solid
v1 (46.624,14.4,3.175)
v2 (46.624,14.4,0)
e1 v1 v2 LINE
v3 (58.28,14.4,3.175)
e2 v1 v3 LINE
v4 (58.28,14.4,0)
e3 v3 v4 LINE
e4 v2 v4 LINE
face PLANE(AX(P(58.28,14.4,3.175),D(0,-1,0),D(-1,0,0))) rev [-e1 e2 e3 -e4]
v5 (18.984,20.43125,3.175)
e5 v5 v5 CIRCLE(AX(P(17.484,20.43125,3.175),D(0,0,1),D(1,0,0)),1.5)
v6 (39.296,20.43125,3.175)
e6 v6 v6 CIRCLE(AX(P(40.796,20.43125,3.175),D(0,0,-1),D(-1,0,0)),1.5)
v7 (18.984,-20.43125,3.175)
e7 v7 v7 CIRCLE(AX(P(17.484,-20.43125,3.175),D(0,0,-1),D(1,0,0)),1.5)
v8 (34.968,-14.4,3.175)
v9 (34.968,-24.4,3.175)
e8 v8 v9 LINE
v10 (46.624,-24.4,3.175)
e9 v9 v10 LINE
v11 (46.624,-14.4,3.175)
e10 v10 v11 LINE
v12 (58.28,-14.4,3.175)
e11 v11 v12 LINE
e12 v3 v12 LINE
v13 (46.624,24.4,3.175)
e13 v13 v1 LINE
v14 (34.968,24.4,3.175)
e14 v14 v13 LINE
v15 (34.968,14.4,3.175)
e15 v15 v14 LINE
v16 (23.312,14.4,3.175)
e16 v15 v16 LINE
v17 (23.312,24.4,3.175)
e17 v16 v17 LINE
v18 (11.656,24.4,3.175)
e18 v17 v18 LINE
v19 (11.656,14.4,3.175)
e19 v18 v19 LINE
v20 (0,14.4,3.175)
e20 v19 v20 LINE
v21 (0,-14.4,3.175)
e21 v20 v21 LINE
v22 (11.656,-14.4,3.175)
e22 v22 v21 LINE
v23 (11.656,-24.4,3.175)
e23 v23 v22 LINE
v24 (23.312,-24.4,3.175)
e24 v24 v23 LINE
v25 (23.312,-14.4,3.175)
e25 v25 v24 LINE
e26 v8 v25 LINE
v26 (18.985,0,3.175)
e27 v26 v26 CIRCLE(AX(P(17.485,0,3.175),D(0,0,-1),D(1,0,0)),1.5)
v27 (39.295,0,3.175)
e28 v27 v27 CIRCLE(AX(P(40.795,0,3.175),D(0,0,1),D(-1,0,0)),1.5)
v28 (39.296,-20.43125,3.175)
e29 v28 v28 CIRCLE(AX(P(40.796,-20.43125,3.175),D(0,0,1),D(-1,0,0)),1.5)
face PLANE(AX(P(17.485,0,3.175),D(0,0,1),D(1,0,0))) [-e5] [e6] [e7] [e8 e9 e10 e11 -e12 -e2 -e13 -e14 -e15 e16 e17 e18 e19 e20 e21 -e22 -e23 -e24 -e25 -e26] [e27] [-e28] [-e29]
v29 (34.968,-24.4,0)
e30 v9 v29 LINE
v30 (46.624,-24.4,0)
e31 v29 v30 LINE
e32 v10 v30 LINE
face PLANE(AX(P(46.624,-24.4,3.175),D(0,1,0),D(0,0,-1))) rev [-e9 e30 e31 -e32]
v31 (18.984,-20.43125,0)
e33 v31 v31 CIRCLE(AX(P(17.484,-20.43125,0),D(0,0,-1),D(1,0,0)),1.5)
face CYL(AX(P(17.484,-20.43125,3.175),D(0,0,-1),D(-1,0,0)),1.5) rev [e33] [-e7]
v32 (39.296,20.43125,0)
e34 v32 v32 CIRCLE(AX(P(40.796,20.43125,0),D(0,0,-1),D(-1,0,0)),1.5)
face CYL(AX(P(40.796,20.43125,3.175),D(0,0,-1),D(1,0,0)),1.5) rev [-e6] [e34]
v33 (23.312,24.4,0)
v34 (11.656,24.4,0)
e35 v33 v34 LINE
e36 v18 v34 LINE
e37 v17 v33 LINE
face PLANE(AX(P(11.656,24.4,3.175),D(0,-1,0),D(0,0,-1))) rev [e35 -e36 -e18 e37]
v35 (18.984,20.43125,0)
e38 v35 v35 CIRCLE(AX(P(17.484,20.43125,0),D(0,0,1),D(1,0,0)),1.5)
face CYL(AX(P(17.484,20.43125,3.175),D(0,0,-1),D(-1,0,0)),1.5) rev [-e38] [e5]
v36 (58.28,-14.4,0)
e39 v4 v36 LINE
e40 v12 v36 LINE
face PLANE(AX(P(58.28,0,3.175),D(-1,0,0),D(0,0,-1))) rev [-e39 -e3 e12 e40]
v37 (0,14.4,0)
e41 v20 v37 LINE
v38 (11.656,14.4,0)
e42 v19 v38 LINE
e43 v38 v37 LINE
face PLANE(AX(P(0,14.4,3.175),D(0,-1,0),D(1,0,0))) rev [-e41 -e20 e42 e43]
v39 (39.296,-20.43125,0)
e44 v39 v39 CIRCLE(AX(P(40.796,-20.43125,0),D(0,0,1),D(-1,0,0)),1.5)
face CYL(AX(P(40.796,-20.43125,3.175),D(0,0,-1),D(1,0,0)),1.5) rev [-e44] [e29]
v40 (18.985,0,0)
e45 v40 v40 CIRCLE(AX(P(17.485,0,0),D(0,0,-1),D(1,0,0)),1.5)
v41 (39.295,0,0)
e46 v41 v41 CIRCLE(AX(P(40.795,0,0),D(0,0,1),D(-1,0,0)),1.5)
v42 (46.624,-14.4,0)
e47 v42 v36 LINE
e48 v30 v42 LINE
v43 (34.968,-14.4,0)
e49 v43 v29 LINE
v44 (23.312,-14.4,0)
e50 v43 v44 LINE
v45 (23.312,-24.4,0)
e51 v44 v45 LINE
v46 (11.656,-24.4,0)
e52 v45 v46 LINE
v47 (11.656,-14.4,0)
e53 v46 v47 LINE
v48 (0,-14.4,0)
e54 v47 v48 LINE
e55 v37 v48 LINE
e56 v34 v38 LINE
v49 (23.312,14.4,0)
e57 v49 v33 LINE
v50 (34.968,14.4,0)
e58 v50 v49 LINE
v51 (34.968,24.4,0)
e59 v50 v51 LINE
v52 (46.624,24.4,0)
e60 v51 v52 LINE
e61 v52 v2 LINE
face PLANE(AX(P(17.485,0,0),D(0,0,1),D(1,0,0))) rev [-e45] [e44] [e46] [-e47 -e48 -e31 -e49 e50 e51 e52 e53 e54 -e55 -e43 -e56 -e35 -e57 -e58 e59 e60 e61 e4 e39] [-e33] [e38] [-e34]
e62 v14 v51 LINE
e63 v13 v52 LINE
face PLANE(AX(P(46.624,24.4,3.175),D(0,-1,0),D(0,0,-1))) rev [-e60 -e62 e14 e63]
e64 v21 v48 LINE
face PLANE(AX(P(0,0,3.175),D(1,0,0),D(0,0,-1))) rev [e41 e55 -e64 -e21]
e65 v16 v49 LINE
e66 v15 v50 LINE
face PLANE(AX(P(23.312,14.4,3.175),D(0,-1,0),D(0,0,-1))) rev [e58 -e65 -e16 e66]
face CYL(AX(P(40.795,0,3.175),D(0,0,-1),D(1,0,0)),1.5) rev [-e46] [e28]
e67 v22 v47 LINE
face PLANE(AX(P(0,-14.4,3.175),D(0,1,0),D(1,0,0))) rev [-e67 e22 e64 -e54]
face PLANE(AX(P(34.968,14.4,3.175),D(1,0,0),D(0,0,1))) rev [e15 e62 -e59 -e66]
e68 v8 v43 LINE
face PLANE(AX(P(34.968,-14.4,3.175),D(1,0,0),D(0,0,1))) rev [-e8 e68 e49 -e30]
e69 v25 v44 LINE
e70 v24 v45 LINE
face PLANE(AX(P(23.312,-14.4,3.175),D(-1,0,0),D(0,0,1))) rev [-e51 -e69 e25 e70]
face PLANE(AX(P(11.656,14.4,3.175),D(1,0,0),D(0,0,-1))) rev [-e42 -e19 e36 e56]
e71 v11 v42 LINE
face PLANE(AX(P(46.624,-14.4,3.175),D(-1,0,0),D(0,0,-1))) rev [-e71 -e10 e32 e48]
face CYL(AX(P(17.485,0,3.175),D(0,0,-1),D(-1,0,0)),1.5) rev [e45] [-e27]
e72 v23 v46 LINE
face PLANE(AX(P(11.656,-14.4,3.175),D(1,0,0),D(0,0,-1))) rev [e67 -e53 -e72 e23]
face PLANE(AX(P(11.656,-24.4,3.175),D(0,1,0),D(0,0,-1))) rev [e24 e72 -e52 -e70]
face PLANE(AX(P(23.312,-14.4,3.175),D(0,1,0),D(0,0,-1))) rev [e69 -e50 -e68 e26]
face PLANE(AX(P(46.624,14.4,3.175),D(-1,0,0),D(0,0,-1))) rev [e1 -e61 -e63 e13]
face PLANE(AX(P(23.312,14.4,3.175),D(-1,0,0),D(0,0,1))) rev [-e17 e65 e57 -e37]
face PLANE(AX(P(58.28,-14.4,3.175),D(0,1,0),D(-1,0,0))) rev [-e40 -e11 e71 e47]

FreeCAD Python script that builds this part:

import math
import FreeCAD as App
import Part
import Sketcher

doc = App.newDocument("Part")
params = doc.addObject("Spreadsheet::Sheet", "Params")
for row, (alias, value) in enumerate([
    ("sketch1_diameter", "3 mm"),
    ("sketch1_height", "10 mm"),
    ("sketch1_height2", "14.4 mm"),
    ("pad1_length", "3.175 mm"),
], start=1):
    params.set(f"A{row}", alias)
    params.set(f"B{row}", "=" + value)
    params.setAlias(f"B{row}", alias)

body = doc.addObject("PartDesign::Body", "Body")

sketch1 = body.newObject("Sketcher::SketchObject", "Sketch")
sketch1.AttachmentSupport = (doc.getObject("XY_Plane"), [""])
sketch1.MapMode = "FlatFace"
sketch1.addGeometry([
    Part.LineSegment(App.Vector(29.1, 14.4, 0), App.Vector(23.3, 14.4, 0)),
    Part.LineSegment(App.Vector(23.3, 14.4, 0), App.Vector(23.3, 24.4, 0)),
    Part.LineSegment(App.Vector(23.3, 24.4, 0), App.Vector(11.7, 24.4, 0)),
    Part.LineSegment(App.Vector(11.7, 24.4, 0), App.Vector(11.7, 14.4, 0)),
    Part.LineSegment(App.Vector(11.7, 14.4, 0), App.Vector(0, 14.4, 0)),
    Part.LineSegment(App.Vector(0, 14.4, 0), App.Vector(0, 0, 0)),
    Part.LineSegment(App.Vector(0, 0, 0), App.Vector(16, 0, 0)),
    Part.ArcOfCircle(Part.Circle(App.Vector(17.5, 0, 0), App.Vector(0, 0, 1), 1.5), math.radians(0), math.radians(180)),
    Part.LineSegment(App.Vector(19, 0, 0), App.Vector(29.1, 0, 0)),
    Part.LineSegment(App.Vector(29.1, 0, 0), App.Vector(29.1, 14.4, 0)),
    Part.Circle(App.Vector(17.5, 20.4, 0), App.Vector(0, 0, 1), 1.5),
], False)
sketch1.addConstraint([
    Sketcher.Constraint("Coincident", 0, 2, 1, 1),
    Sketcher.Constraint("Coincident", 1, 2, 2, 1),
    Sketcher.Constraint("Coincident", 2, 2, 3, 1),
    Sketcher.Constraint("Coincident", 3, 2, 4, 1),
    Sketcher.Constraint("Coincident", 4, 2, 5, 1),
    Sketcher.Constraint("Coincident", 5, 2, 6, 1),
    Sketcher.Constraint("Coincident", 6, 2, 7, 2),
    Sketcher.Constraint("Coincident", 7, 1, 8, 1),
    Sketcher.Constraint("Coincident", 8, 2, 9, 1),
    Sketcher.Constraint("Coincident", 9, 2, 0, 1),
    Sketcher.Constraint("Horizontal", 0),
    Sketcher.Constraint("Vertical", 1),
    Sketcher.Constraint("Horizontal", 2),
    Sketcher.Constraint("Vertical", 3),
    Sketcher.Constraint("Horizontal", 4),
    Sketcher.Constraint("Vertical", 5),
    Sketcher.Constraint("Horizontal", 6),
    Sketcher.Constraint("Horizontal", 8),
    Sketcher.Constraint("Vertical", 9),
    Sketcher.Constraint("Coincident", 5, 2, -1, 1),
    Sketcher.Constraint("Equal", 7, 10),
    Sketcher.Constraint("PointOnObject", 7, 3, -1),
    Sketcher.Constraint("PointOnObject", 7, 1, -1),
    Sketcher.Constraint("Horizontal", 0, 2, 3, 2),
    Sketcher.Constraint("Equal", 2, 4),
    Sketcher.Constraint("Diameter", 10, 3.0),
    Sketcher.Constraint("DistanceY", 1, 1, 1, 2, 10.0),
    Sketcher.Constraint("DistanceY", 5, 2, 5, 1, 14.4),
    Sketcher.Constraint("DistanceX", 0, 2, 0, 1, 5.828),
    Sketcher.Constraint("DistanceX", 2, 2, 2, 1, 11.656),
    Sketcher.Constraint("DistanceX", 6, 1, 6, 2, 15.985),
    Sketcher.Constraint("DistanceX", -1, 1, 10, 3, 17.484),
    Sketcher.Constraint("DistanceY", -1, 1, 10, 3, 20.43125),
])
sketch1.setExpression("Constraints[25]", "Params.sketch1_diameter")
sketch1.setExpression("Constraints[26]", "Params.sketch1_height")
sketch1.setExpression("Constraints[27]", "Params.sketch1_height2")
pad1 = body.newObject("PartDesign::Pad", "Pad")
pad1.Profile = sketch1
pad1.setExpression("Length", "Params.pad1_length")
body2 = doc.addObject("PartDesign::Body", "Body001")
doc.recompute()

body2.BaseFeature = body
doc.recompute()

mirroring = doc.addObject("Part::Mirroring", "Mirroring")
mirroring.Source = body
mirroring.Base = App.Vector(0, 0, 3.175)
mirroring.Normal = App.Vector(0, 1, 0)
body3 = doc.addObject("PartDesign::Body", "Body002")
body3.BaseFeature = mirroring
boolean = body2.newObject("PartDesign::Boolean", "Boolean")
boolean.Type = "Fuse"
boolean.addObjects([body3])
doc.recompute()
body4 = doc.addObject("PartDesign::Body", "Body003")
doc.recompute()

body4.BaseFeature = body2
doc.recompute()

mirroring2 = doc.addObject("Part::Mirroring", "Mirroring001")
mirroring2.Source = body2
mirroring2.Base = App.Vector(29.14, 14.4, 3.175)
mirroring2.Normal = App.Vector(-1, 0, 0)
body5 = doc.addObject("PartDesign::Body", "Body004")
body5.BaseFeature = mirroring2
boolean2 = body4.newObject("PartDesign::Boolean", "Boolean001")
boolean2.Type = "Fuse"
boolean2.addObjects([body5])
doc.recompute()
mirroring.Visibility = False
mirroring2.Visibility = False

doc.recompute()
